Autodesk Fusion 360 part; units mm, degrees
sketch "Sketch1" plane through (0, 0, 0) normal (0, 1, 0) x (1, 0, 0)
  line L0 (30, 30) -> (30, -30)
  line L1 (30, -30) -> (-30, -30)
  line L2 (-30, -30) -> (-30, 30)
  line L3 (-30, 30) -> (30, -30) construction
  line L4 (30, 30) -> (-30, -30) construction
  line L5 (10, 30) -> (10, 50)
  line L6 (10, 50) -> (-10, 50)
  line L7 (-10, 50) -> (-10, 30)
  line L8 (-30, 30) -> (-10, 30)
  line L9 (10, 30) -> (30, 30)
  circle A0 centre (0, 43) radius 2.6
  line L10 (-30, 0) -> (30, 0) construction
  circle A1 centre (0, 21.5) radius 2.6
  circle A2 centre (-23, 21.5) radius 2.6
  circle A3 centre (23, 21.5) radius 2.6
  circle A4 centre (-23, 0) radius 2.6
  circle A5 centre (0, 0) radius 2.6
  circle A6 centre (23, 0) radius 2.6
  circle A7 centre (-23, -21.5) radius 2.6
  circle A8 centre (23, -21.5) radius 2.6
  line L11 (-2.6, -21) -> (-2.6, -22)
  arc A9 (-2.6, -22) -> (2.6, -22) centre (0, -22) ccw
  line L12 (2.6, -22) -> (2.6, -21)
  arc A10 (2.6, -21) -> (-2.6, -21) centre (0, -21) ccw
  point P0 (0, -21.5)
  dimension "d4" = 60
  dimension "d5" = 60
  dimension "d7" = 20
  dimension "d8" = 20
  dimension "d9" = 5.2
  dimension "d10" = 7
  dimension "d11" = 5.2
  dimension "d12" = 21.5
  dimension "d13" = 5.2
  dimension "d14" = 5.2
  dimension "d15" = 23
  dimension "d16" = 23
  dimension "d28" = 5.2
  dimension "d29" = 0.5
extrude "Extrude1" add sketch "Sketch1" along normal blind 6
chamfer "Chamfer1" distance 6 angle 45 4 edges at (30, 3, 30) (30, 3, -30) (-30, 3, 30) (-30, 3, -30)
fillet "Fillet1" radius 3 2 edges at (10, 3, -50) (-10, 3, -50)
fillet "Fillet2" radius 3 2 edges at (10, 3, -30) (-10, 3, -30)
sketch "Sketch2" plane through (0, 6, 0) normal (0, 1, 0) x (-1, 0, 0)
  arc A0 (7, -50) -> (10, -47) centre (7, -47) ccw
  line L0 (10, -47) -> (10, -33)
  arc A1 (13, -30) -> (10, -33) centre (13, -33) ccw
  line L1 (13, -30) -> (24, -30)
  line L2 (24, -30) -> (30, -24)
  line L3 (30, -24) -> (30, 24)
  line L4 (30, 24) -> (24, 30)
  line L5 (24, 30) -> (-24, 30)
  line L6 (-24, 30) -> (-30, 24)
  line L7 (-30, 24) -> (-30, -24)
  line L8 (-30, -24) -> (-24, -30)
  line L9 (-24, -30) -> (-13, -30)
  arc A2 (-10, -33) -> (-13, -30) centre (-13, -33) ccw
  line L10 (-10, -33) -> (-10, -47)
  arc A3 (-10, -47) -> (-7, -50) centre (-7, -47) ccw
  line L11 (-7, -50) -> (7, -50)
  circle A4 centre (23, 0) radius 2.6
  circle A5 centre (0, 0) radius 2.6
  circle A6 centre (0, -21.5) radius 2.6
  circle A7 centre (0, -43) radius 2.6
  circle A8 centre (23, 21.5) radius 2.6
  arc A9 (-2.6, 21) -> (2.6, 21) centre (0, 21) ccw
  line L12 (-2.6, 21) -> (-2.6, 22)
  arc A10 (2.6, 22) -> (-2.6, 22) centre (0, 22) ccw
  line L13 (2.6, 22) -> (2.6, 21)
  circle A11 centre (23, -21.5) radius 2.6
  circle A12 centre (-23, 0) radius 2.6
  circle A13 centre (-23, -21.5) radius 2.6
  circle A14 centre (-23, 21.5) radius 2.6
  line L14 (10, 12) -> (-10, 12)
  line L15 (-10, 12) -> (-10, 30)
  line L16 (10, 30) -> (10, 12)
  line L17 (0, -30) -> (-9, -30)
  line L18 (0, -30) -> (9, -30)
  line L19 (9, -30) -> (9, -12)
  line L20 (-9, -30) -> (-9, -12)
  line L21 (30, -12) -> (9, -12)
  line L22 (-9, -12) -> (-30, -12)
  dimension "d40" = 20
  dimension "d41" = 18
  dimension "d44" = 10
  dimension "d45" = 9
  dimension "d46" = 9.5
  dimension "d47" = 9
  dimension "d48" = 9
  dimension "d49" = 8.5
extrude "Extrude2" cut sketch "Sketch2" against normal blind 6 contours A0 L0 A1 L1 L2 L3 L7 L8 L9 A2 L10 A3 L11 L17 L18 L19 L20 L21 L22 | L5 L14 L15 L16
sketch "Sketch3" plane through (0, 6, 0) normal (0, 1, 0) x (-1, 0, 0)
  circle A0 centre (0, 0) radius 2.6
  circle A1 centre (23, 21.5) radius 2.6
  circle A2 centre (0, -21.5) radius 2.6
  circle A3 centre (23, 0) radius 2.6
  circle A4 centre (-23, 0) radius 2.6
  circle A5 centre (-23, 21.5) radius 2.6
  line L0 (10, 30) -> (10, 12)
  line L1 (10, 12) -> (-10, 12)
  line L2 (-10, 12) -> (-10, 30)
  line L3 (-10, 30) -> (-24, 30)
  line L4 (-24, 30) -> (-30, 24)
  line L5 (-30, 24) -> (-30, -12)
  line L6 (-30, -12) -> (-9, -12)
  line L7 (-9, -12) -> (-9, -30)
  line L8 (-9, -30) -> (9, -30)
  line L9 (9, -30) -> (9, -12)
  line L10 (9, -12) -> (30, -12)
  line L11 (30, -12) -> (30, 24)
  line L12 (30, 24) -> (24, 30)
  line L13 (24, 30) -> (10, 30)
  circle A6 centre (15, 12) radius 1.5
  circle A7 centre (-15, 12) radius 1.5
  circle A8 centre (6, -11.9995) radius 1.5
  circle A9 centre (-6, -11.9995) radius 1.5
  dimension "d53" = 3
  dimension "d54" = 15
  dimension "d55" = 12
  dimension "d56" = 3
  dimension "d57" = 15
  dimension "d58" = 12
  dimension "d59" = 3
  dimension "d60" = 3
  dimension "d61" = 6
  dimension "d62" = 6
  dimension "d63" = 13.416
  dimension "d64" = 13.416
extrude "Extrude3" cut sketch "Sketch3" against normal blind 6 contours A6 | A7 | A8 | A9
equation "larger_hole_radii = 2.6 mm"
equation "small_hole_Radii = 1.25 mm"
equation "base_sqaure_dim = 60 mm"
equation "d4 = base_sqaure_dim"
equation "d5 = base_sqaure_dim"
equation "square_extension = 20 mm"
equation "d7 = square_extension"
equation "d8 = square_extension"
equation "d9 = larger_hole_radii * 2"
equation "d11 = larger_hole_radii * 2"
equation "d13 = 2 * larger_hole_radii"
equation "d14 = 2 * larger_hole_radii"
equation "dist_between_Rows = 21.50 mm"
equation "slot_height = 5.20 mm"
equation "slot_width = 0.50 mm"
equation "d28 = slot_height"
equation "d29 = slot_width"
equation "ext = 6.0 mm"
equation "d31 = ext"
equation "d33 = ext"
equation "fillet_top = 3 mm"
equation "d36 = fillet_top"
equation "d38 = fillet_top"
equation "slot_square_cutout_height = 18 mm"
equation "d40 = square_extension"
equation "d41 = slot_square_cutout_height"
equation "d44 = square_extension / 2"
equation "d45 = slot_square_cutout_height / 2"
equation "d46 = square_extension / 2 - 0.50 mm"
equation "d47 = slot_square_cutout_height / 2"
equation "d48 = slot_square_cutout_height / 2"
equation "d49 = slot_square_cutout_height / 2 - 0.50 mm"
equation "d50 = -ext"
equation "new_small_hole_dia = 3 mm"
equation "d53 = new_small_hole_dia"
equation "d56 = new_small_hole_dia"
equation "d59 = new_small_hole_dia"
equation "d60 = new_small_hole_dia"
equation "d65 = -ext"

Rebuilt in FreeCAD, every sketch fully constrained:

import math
import FreeCAD as App
import Part
import Sketcher


def edges_at(feature, points):
    """Names of the edges that pass closest to the given points."""
    edges = feature.Shape.Edges
    near = lambda p: min(range(len(edges)), key=lambda i: edges[i].distToShape(Part.Vertex(*p))[0])
    return sorted({f"Edge{near(p) + 1}" for p in points})


def add_polygon(sketch, points):
    """Adds a closed chain of lines whose ends are joined by coincident constraints."""
    first, n = sketch.GeometryCount, len(points)
    for a, b in zip(points, points[1:] + points[:1]):
        sketch.addGeometry(Part.LineSegment(App.Vector(*a, 0), App.Vector(*b, 0)), False)
    for i in range(n):
        sketch.addConstraint(Sketcher.Constraint("Coincident", first + i, 2, first + (i + 1) % n, 1))

doc = App.newDocument("Part")
params = doc.addObject("Spreadsheet::Sheet", "Params")
for row, (alias, value) in enumerate([
    ("sketch1_diameter", "5.2 mm"),
    ("sketch1_width", "20 mm"),
    ("pad1_length", "6 mm"),
    ("chamfer_size", "6 mm"),
    ("fillet_radius", "3 mm"),
    ("fillet2_radius", "3 mm"),
    ("sketch2_width", "18 mm"),
    ("sketch2_width2", "20 mm"),
    ("sketch2_radius", "3 mm"),
    ("sketch2_diameter", "5.2 mm"),
    ("pocket1_length", "6 mm"),
    ("sketch3_diameter", "3 mm"),
    ("pocket2_length", "6 mm"),
], start=1):
    params.set(f"A{row}", alias)
    params.set(f"B{row}", "=" + value)
    params.setAlias(f"B{row}", alias)

body = doc.addObject("PartDesign::Body", "Body")

# Sketch on XZ plane
sketch1 = body.newObject("Sketcher::SketchObject", "Sketch")
sketch1.AttachmentSupport = (doc.getObject("XZ_Plane"), [""])
sketch1.MapMode = "FlatFace"
add_polygon(sketch1, [(30, 30), (30, -30), (10, -30), (10, -50), (-10, -50), (-10, -30), (-30, -30), (-30, 30)])  # lines 0-7
sketch1.addGeometry(Part.Circle(App.Vector(-23, 21.5, 0), App.Vector(0, 0, 1), 2.6), False)  # 8
sketch1.addGeometry(Part.Circle(App.Vector(-23, 0, 0), App.Vector(0, 0, 1), 2.6), False)  # 9
sketch1.addGeometry(Part.LineSegment(App.Vector(-2.6, 22, 0), App.Vector(-2.6, 21, 0)), False)  # 10
sketch1.addGeometry(Part.ArcOfCircle(Part.Circle(App.Vector(0, 21, 0), App.Vector(0, 0, 1), 2.6), math.radians(180), math.radians(360)), False)  # 11
sketch1.addGeometry(Part.LineSegment(App.Vector(2.6, 21, 0), App.Vector(2.6, 22, 0)), False)  # 12
sketch1.addGeometry(Part.ArcOfCircle(Part.Circle(App.Vector(0, 22, 0), App.Vector(0, 0, 1), 2.6), math.radians(0), math.radians(180)), False)  # 13
sketch1.addGeometry(Part.Circle(App.Vector(23, 21.5, 0), App.Vector(0, 0, 1), 2.6), False)  # 14
sketch1.addGeometry(Part.Circle(App.Vector(0, 0, 0), App.Vector(0, 0, 1), 2.6), False)  # 15
sketch1.addGeometry(Part.Circle(App.Vector(23, 0, 0), App.Vector(0, 0, 1), 2.6), False)  # 16
sketch1.addGeometry(Part.Circle(App.Vector(-23, -21.5, 0), App.Vector(0, 0, 1), 2.6), False)  # 17
sketch1.addGeometry(Part.Circle(App.Vector(0, -21.5, 0), App.Vector(0, 0, 1), 2.6), False)  # 18
sketch1.addGeometry(Part.Circle(App.Vector(23, -21.5, 0), App.Vector(0, 0, 1), 2.6), False)  # 19
sketch1.addGeometry(Part.Circle(App.Vector(0, -43, 0), App.Vector(0, 0, 1), 2.6), False)  # 20
sketch1.addConstraint([
    Sketcher.Constraint("Tangent", 10, 2, 11, 1),
    Sketcher.Constraint("Tangent", 11, 2, 12, 1),
    Sketcher.Constraint("Tangent", 12, 2, 13, 1),
    Sketcher.Constraint("Tangent", 13, 2, 10, 1),
    Sketcher.Constraint("Vertical", 0),
    Sketcher.Constraint("Horizontal", 1),
    Sketcher.Constraint("Vertical", 2),
    Sketcher.Constraint("Horizontal", 3),
    Sketcher.Constraint("Vertical", 4),
    Sketcher.Constraint("Horizontal", 5),
    Sketcher.Constraint("Vertical", 6),
    Sketcher.Constraint("Horizontal", 7),
    Sketcher.Constraint("Vertical", 10),
    Sketcher.Constraint("Vertical", 12),
    Sketcher.Constraint("Coincident", 15, 3, -1, 1),
    Sketcher.Constraint("Equal", 8, 9),
    Sketcher.Constraint("Equal", 9, 11),
    Sketcher.Constraint("Equal", 13, 14),
    Sketcher.Constraint("Equal", 14, 15),
    Sketcher.Constraint("Equal", 15, 16),
    Sketcher.Constraint("Equal", 16, 17),
    Sketcher.Constraint("Equal", 17, 18),
    Sketcher.Constraint("Equal", 18, 19),
    Sketcher.Constraint("Equal", 19, 20),
    Sketcher.Constraint("Symmetric", 9, 3, 16, 3, -1, 1),
    Sketcher.Constraint("Symmetric", 14, 3, 17, 3, -1, 1),
    Sketcher.Constraint("Symmetric", 8, 3, 19, 3, -1, 1),
    Sketcher.Constraint("Symmetric", 0, 2, 6, 2, -1, 1),
    Sketcher.Constraint("Symmetric", 8, 3, 14, 3, -2),
    Sketcher.Constraint("Symmetric", 1, 2, 4, 2, -2),
    Sketcher.Constraint("PointOnObject", 9, 3, -1),
    Sketcher.Constraint("PointOnObject", 11, 3, -2),
    Sketcher.Constraint("PointOnObject", 18, 3, -2),
    Sketcher.Constraint("PointOnObject", 20, 3, -2),
    Sketcher.Constraint("Horizontal", 17, 3, 18, 3),
    Sketcher.Constraint("Vertical", 8, 3, 9, 3),
    Sketcher.Constraint("Equal", 1, 3),
    Sketcher.Constraint("Equal", 7, 0),
    Sketcher.Constraint("Equal", 5, 2),
    Sketcher.Constraint("Diameter", 8, 5.2),
    Sketcher.Constraint("DistanceX", 1, 2, 1, 1, 20.0),
    Sketcher.Constraint("DistanceX", 8, 3, -1, 1, 23.0),
    Sketcher.Constraint("DistanceY", 2, 2, 20, 3, 7.0),
    Sketcher.Constraint("DistanceY", -1, 1, 8, 3, 21.5),
    Sketcher.Constraint("DistanceY", 11, 3, 8, 3, 0.5),
    Sketcher.Constraint("DistanceY", 8, 3, 13, 3, 0.5),
])
sketch1.setExpression("Constraints[47]", "Params.sketch1_diameter")
sketch1.setExpression("Constraints[48]", "Params.sketch1_width")
pad1 = body.newObject("PartDesign::Pad", "Pad")
pad1.Profile = sketch1
pad1.setExpression("Length", "Params.pad1_length")
pad1.Reversed = True
doc.recompute()

chamfer = body.newObject("PartDesign::Chamfer", "Chamfer")
chamfer.Base = (pad1, edges_at(pad1, [
    (30, 3, 30),
    (30, 3, -30),
    (-30, 3, 30),
    (-30, 3, -30),
]))
chamfer.setExpression("Size", "Params.chamfer_size")
doc.recompute()

fillet = body.newObject("PartDesign::Fillet", "Fillet")
fillet.Base = (chamfer, edges_at(chamfer, [(10, 3, -50), (-10, 3, -50)]))
fillet.setExpression("Radius", "Params.fillet_radius")
doc.recompute()

fillet2 = body.newObject("PartDesign::Fillet", "Fillet001")
fillet2.Base = (fillet, edges_at(fillet, [(10, 3, -30), (-10, 3, -30)]))
fillet2.setExpression("Radius", "Params.fillet2_radius")

# Sketch on XZ plane
sketch2 = body.newObject("Sketcher::SketchObject", "Sketch001")
sketch2.AttachmentSupport = (doc.getObject("XZ_Plane"), [""])
sketch2.MapMode = "FlatFace"
sketch2.AttachmentOffset = App.Placement(App.Vector(0, 0, -6), App.Rotation())
sketch2.addGeometry(Part.LineSegment(App.Vector(7, -50, 0), App.Vector(-7, -50, 0)), False)  # 0
sketch2.addGeometry(Part.ArcOfCircle(Part.Circle(App.Vector(-7, -47, 0), App.Vector(0, 0, 1), 3), math.radians(180), math.radians(270)), False)  # 1
sketch2.addGeometry(Part.LineSegment(App.Vector(-10, -47, 0), App.Vector(-10, -33, 0)), False)  # 2
sketch2.addGeometry(Part.ArcOfCircle(Part.Circle(App.Vector(-13, -33, 0), App.Vector(0, 0, 1), 3), math.radians(0), math.radians(90)), False)  # 3
sketch2.addGeometry(Part.LineSegment(App.Vector(-13, -30, 0), App.Vector(-24, -30, 0)), False)  # 4
sketch2.addGeometry(Part.LineSegment(App.Vector(-24, -30, 0), App.Vector(-30, -24, 0)), False)  # 5
sketch2.addGeometry(Part.LineSegment(App.Vector(-30, -24, 0), App.Vector(-30, -12, 0)), False)  # 6
sketch2.addGeometry(Part.LineSegment(App.Vector(-30, -12, 0), App.Vector(-9, -12, 0)), False)  # 7
sketch2.addGeometry(Part.LineSegment(App.Vector(-9, -12, 0), App.Vector(-9, -30, 0)), False)  # 8
sketch2.addGeometry(Part.LineSegment(App.Vector(-9, -30, 0), App.Vector(9, -30, 0)), False)  # 9
sketch2.addGeometry(Part.LineSegment(App.Vector(9, -30, 0), App.Vector(9, -12, 0)), False)  # 10
sketch2.addGeometry(Part.LineSegment(App.Vector(9, -12, 0), App.Vector(30, -12, 0)), False)  # 11
sketch2.addGeometry(Part.LineSegment(App.Vector(30, -12, 0), App.Vector(30, -24, 0)), False)  # 12
sketch2.addGeometry(Part.LineSegment(App.Vector(30, -24, 0), App.Vector(24, -30, 0)), False)  # 13
sketch2.addGeometry(Part.LineSegment(App.Vector(24, -30, 0), App.Vector(13, -30, 0)), False)  # 14
sketch2.addGeometry(Part.ArcOfCircle(Part.Circle(App.Vector(13, -33, 0), App.Vector(0, 0, 1), 3), math.radians(90), math.radians(180)), False)  # 15
sketch2.addGeometry(Part.LineSegment(App.Vector(10, -33, 0), App.Vector(10, -47, 0)), False)  # 16
sketch2.addGeometry(Part.ArcOfCircle(Part.Circle(App.Vector(7, -47, 0), App.Vector(0, 0, 1), 3), math.radians(-90), math.radians(0)), False)  # 17
sketch2.addGeometry(Part.Circle(App.Vector(23, -21.5, 0), App.Vector(0, 0, 1), 2.6), False)  # 18
sketch2.addGeometry(Part.Circle(App.Vector(0, -43, 0), App.Vector(0, 0, 1), 2.6), False)  # 19
sketch2.addGeometry(Part.Circle(App.Vector(-23, -21.5, 0), App.Vector(0, 0, 1), 2.6), False)  # 20
add_polygon(sketch2, [(-10, 12), (-10, 30), (10, 30), (10, 12)])  # lines 21-24
sketch2.addGeometry(Part.ArcOfCircle(Part.Circle(App.Vector(0, 21, 0), App.Vector(0, 0, 1), 2.6), math.radians(180), math.radians(360)), False)  # 25
sketch2.addGeometry(Part.LineSegment(App.Vector(2.6, 21, 0), App.Vector(2.6, 22, 0)), False)  # 26
sketch2.addGeometry(Part.ArcOfCircle(Part.Circle(App.Vector(0, 22, 0), App.Vector(0, 0, 1), 2.6), math.radians(0), math.radians(180)), False)  # 27
sketch2.addGeometry(Part.LineSegment(App.Vector(-2.6, 22, 0), App.Vector(-2.6, 21, 0)), False)  # 28
sketch2.addConstraint([
    Sketcher.Constraint("Tangent", 0, 2, 1, 2),
    Sketcher.Constraint("Tangent", 1, 1, 2, 1),
    Sketcher.Constraint("Tangent", 2, 2, 3, 1),
    Sketcher.Constraint("Tangent", 3, 2, 4, 1),
    Sketcher.Constraint("Coincident", 4, 2, 5, 1),
    Sketcher.Constraint("Coincident", 5, 2, 6, 1),
    Sketcher.Constraint("Coincident", 6, 2, 7, 1),
    Sketcher.Constraint("Coincident", 7, 2, 8, 1),
    Sketcher.Constraint("Coincident", 8, 2, 9, 1),
    Sketcher.Constraint("Coincident", 9, 2, 10, 1),
    Sketcher.Constraint("Coincident", 10, 2, 11, 1),
    Sketcher.Constraint("Coincident", 11, 2, 12, 1),
    Sketcher.Constraint("Coincident", 12, 2, 13, 1),
    Sketcher.Constraint("Coincident", 13, 2, 14, 1),
    Sketcher.Constraint("Tangent", 14, 2, 15, 1),
    Sketcher.Constraint("Tangent", 15, 2, 16, 1),
    Sketcher.Constraint("Tangent", 16, 2, 17, 2),
    Sketcher.Constraint("Tangent", 17, 1, 0, 1),
    Sketcher.Constraint("Tangent", 25, 2, 26, 1),
    Sketcher.Constraint("Tangent", 26, 2, 27, 1),
    Sketcher.Constraint("Tangent", 27, 2, 28, 1),
    Sketcher.Constraint("Tangent", 28, 2, 25, 1),
    Sketcher.Constraint("Horizontal", 0),
    Sketcher.Constraint("Vertical", 2),
    Sketcher.Constraint("Horizontal", 4),
    Sketcher.Constraint("Vertical", 6),
    Sketcher.Constraint("Horizontal", 7),
    Sketcher.Constraint("Vertical", 8),
    Sketcher.Constraint("Horizontal", 9),
    Sketcher.Constraint("Vertical", 10),
    Sketcher.Constraint("Horizontal", 11),
    Sketcher.Constraint("Vertical", 12),
    Sketcher.Constraint("Horizontal", 14),
    Sketcher.Constraint("Vertical", 16),
    Sketcher.Constraint("Vertical", 21),
    Sketcher.Constraint("Horizontal", 22),
    Sketcher.Constraint("Vertical", 23),
    Sketcher.Constraint("Horizontal", 24),
    Sketcher.Constraint("Vertical", 26),
    Sketcher.Constraint("Vertical", 28),
    Sketcher.Constraint("Equal", 1, 3),
    Sketcher.Constraint("Equal", 3, 15),
    Sketcher.Constraint("Equal", 15, 17),
    Sketcher.Constraint("Equal", 18, 19),
    Sketcher.Constraint("Equal", 19, 20),
    Sketcher.Constraint("Equal", 20, 25),
    Sketcher.Constraint("Symmetric", 3, 3, 15, 3, -2),
    Sketcher.Constraint("Symmetric", 18, 3, 20, 3, -2),
    Sketcher.Constraint("Symmetric", 7, 2, 10, 2, -2),
    Sketcher.Constraint("Symmetric", 5, 2, 12, 2, -2),
    Sketcher.Constraint("PointOnObject", 19, 3, -2),
    Sketcher.Constraint("PointOnObject", 25, 3, -2),
    Sketcher.Constraint("Perpendicular", 5, 13),
    Sketcher.Constraint("Horizontal", 4, 2, 8, 2),
    Sketcher.Constraint("Vertical", 2, 2, 21, 2),
    Sketcher.Constraint("Vertical", 16, 2, 22, 2),
    Sketcher.Constraint("Equal", 4, 14),
    Sketcher.Constraint("Equal", 0, 2),
    Sketcher.Constraint("Equal", 9, 8),
    Sketcher.Constraint("Equal", 10, 21),
    Sketcher.Constraint("DistanceX", 9, 1, 9, 2, 18.0),
    Sketcher.Constraint("DistanceX", 22, 1, 22, 2, 20.0),
    Sketcher.Constraint("Radius", 1, 3.0),
    Sketcher.Constraint("DistanceX", 15, 3, 18, 3, 10.0),
    Sketcher.Constraint("DistanceY", 19, 3, 3, 3, 10.0),
    Sketcher.Constraint("DistanceY", 3, 3, 5, 2, 9.0),
    Sketcher.Constraint("DistanceX", 5, 2, 2, 2, 20.0),
    Sketcher.Constraint("DistanceY", 25, 3, 21, 2, 9.0),
    Sketcher.Constraint("DistanceY", 23, 2, 27, 3, 10.0),
    Sketcher.Constraint("Diameter", 18, 5.2),
    Sketcher.Constraint("DistanceY", 3, 2, 20, 3, 8.5),
    Sketcher.Constraint("DistanceY", 1, 3, -1, 1, 47.0),
    Sketcher.Constraint("DistanceY", -1, 1, 25, 3, 21.0),
])
sketch2.setExpression("Constraints[64]", "Params.sketch2_width")
sketch2.setExpression("Constraints[65]", "Params.sketch2_width2")
sketch2.setExpression("Constraints[66]", "Params.sketch2_radius")
sketch2.setExpression("Constraints[73]", "Params.sketch2_diameter")
pocket1 = body.newObject("PartDesign::Pocket", "Pocket")
pocket1.Profile = sketch2
pocket1.setExpression("Length", "Params.pocket1_length")
pocket1.Reversed = True

# Sketch on XZ plane
sketch3 = body.newObject("Sketcher::SketchObject", "Sketch002")
sketch3.AttachmentSupport = (doc.getObject("XZ_Plane"), [""])
sketch3.MapMode = "FlatFace"
sketch3.AttachmentOffset = App.Placement(App.Vector(0, 0, -6), App.Rotation())
sketch3.addGeometry([
    Part.Circle(App.Vector(-15, 12, 0), App.Vector(0, 0, 1), 1.5),
    Part.Circle(App.Vector(15, 12, 0), App.Vector(0, 0, 1), 1.5),
    Part.Circle(App.Vector(-6, -12, 0), App.Vector(0, 0, 1), 1.5),
    Part.Circle(App.Vector(6, -12, 0), App.Vector(0, 0, 1), 1.5),
], False)
sketch3.addConstraint([
    Sketcher.Constraint("Equal", 0, 1),
    Sketcher.Constraint("Equal", 1, 2),
    Sketcher.Constraint("Equal", 2, 3),
    Sketcher.Constraint("Symmetric", 0, 3, 1, 3, -2),
    Sketcher.Constraint("Symmetric", 2, 3, 3, 3, -2),
    Sketcher.Constraint("Diameter", 0, 3.0),
    Sketcher.Constraint("DistanceX", 0, 3, -1, 1, 15.0),
    Sketcher.Constraint("DistanceY", -1, 1, 0, 3, 12.0),
    Sketcher.Constraint("DistanceX", 2, 3, -1, 1, 6.0),
    Sketcher.Constraint("DistanceY", 2, 3, -1, 1, 11.9995),
])
sketch3.setExpression("Constraints[5]", "Params.sketch3_diameter")
pocket2 = body.newObject("PartDesign::Pocket", "Pocket001")
pocket2.Profile = sketch3
pocket2.setExpression("Length", "Params.pocket2_length")
pocket2.Reversed = True

doc.recompute()
